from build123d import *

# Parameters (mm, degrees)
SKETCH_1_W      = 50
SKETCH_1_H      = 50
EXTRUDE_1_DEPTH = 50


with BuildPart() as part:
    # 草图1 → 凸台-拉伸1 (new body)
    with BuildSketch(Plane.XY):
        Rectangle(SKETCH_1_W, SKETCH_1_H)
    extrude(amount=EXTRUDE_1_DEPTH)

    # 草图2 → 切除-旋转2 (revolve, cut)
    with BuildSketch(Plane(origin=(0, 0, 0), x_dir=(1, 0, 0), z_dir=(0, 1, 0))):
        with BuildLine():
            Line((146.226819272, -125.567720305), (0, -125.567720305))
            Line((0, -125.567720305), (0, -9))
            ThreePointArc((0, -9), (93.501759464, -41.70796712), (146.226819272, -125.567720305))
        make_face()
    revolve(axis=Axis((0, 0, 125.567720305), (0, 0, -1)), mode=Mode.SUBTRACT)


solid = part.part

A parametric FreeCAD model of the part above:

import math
import FreeCAD as App
import Part
import Sketcher

doc = App.newDocument("Part")
body = doc.addObject("PartDesign::Body", "Body")

sketch1 = doc.addObject("Sketcher::SketchObject", "Sketch")
body.addObject(sketch1)
sketch1.AttachmentSupport = (doc.XY_Plane, [""])
sketch1.MapMode = "FlatFace"
sketch1.addGeometry([
    Part.LineSegment(App.Vector(-25, 25, 0), App.Vector(-25, -25, 0)),
    Part.LineSegment(App.Vector(-25, -25, 0), App.Vector(25, -25, 0)),
    Part.LineSegment(App.Vector(25, -25, 0), App.Vector(25, 25, 0)),
    Part.LineSegment(App.Vector(25, 25, 0), App.Vector(-25, 25, 0)),
], False)
sketch1.addConstraint([
    Sketcher.Constraint("Coincident", 0, 2, 1, 1),
    Sketcher.Constraint("Coincident", 1, 2, 2, 1),
    Sketcher.Constraint("Coincident", 2, 2, 3, 1),
    Sketcher.Constraint("Coincident", 3, 2, 0, 1),
    Sketcher.Constraint("Vertical", 0),
    Sketcher.Constraint("Horizontal", 1),
    Sketcher.Constraint("Vertical", 2),
    Sketcher.Constraint("Horizontal", 3),
    Sketcher.Constraint("Symmetric", 0, 2, 2, 2, -1, 1),
    Sketcher.Constraint("Equal", 3, 0),
    Sketcher.Constraint("DistanceX", 1, 1, 1, 2, 50.0),
])
pad1 = doc.addObject("PartDesign::Pad", "Pad")
body.addObject(pad1)
pad1.Profile = sketch1
pad1.Length = 50

sketch2 = doc.addObject("Sketcher::SketchObject", "Sketch001")
body.addObject(sketch2)
sketch2.AttachmentSupport = (doc.XZ_Plane, [""])
sketch2.MapMode = "FlatFace"
sketch2.addGeometry([
    Part.LineSegment(App.Vector(0, 126, 0), App.Vector(146, 126, 0)),
    Part.ArcOfCircle(Part.Circle(App.Vector(0, 159, 0), App.Vector(0, 0, 1), 150), math.radians(-90), math.radians(-13)),
    Part.LineSegment(App.Vector(0, 9, 0), App.Vector(0, 126, 0)),
], False)
sketch2.addConstraint([
    Sketcher.Constraint("Coincident", 0, 2, 1, 2),
    Sketcher.Constraint("Coincident", 1, 1, 2, 1),
    Sketcher.Constraint("Coincident", 2, 2, 0, 1),
    Sketcher.Constraint("Horizontal", 0),
    Sketcher.Constraint("Vertical", 2),
    Sketcher.Constraint("PointOnObject", 1, 3, -2),
    Sketcher.Constraint("PointOnObject", 1, 1, -2),
    Sketcher.Constraint("Radius", 1, 150.0),
    Sketcher.Constraint("DistanceY", -1, 1, 1, 3, 159.0),
    Sketcher.Constraint("DistanceX", 0, 1, 0, 2, 146.226819),
])
groove = doc.addObject("PartDesign::Groove", "Groove")
body.addObject(groove)
groove.Profile = sketch2
groove.ReferenceAxis = (sketch2, ["V_Axis"])
groove.Angle = 360

doc.recompute()
